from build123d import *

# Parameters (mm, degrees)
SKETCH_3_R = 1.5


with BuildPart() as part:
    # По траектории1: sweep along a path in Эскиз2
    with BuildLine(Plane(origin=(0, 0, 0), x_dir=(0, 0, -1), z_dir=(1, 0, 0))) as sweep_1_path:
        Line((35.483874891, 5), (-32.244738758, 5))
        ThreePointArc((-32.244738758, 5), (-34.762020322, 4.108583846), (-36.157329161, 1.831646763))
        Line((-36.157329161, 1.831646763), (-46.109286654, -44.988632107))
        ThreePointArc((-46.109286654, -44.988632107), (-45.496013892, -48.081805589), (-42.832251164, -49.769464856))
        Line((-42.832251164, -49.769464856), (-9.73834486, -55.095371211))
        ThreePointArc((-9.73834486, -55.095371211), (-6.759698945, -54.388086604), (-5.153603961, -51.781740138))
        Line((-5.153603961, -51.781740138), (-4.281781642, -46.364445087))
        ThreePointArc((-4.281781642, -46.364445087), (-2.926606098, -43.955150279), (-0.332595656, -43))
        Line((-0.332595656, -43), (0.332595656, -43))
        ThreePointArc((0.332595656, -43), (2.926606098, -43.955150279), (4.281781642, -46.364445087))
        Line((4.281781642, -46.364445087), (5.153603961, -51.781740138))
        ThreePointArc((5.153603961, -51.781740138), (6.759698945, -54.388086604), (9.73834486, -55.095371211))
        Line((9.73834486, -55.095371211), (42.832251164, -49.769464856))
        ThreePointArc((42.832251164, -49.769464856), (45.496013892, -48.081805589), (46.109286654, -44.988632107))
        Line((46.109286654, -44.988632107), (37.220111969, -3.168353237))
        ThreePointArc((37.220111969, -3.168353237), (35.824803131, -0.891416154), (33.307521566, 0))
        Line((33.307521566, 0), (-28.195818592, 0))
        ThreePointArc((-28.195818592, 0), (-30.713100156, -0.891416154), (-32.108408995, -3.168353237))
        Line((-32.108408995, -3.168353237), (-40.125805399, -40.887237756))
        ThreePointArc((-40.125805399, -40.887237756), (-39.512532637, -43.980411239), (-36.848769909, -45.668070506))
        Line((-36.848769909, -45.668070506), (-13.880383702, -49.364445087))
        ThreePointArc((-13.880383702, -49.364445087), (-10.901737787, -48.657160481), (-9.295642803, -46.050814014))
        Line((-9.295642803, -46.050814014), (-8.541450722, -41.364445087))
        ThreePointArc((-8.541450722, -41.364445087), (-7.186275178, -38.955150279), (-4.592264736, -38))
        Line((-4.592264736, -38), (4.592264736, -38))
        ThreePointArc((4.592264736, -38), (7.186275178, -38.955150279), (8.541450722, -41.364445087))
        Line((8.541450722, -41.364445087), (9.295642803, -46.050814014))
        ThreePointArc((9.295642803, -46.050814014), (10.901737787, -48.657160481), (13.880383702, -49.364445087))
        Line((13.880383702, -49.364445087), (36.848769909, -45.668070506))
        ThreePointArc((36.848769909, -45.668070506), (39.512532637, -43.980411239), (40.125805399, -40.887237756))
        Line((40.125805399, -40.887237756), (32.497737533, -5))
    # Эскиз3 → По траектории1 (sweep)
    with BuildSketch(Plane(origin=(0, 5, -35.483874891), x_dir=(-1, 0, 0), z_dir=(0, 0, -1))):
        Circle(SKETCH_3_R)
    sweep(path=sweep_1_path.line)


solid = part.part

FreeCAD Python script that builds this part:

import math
import FreeCAD as App
import Part
import Sketcher
Q = App.Units.Quantity

doc = App.newDocument("Part")
params = doc.addObject("Spreadsheet::Sheet", "Params")
for row, (alias, value) in enumerate([
    ("sketch1_diameter", "3 mm"),
    ("sketch2_radius", "4 mm"),
], start=1):
    params.set(f"A{row}", alias)
    params.set(f"B{row}", "=" + value)
    params.setAlias(f"B{row}", alias)

body = doc.addObject("PartDesign::Body", "Body")

sketch1 = body.newObject("Sketcher::SketchObject", "Sketch")
sketch1.AttachmentSupport = (doc.getObject("XY_Plane"), [""])
sketch1.MapMode = "FlatFace"
sketch1.AttachmentOffset = App.Placement(App.Vector(0, 0, -35.483875), App.Rotation())
sketch1.addGeometry(Part.Circle(App.Vector(0, 5, 0), App.Vector(0, 0, 1), 1.5), False)
sketch1.addConstraint([
    Sketcher.Constraint("PointOnObject", 0, 3, -2),
    Sketcher.Constraint("Diameter", 0, 3.0),
    Sketcher.Constraint("DistanceY", -1, 1, 0, 3, 5.0),
])
sketch1.setExpression("Constraints[1]", "Params.sketch1_diameter")

sketch2 = body.newObject("Sketcher::SketchObject", "Sketch001")
sketch2.AttachmentSupport = (doc.getObject("YZ_Plane"), [""])
sketch2.MapMode = "FlatFace"
sketch2.addGeometry([
    Part.LineSegment(App.Vector(5, -35.5, 0), App.Vector(5, 32.2, 0)),
    Part.ArcOfCircle(Part.Circle(App.Vector(1, 32.2, 0), App.Vector(0, 0, 1), 4), math.radians(0), math.radians(78)),
    Part.LineSegment(App.Vector(1.8, 36.2, 0), App.Vector(-45, 46.1, 0)),
    Part.ArcOfCircle(Part.Circle(App.Vector(-45.8, 42.2, 0), App.Vector(0, 0, 1), 4), math.radians(78), math.radians(171)),
    Part.LineSegment(App.Vector(-49.8, 42.8, 0), App.Vector(-55.1, 9.7, 0)),
    Part.ArcOfCircle(Part.Circle(App.Vector(-51.1, 9.1, 0), App.Vector(0, 0, 1), 4), math.radians(171), math.radians(261)),
    Part.LineSegment(App.Vector(-51.8, 5.2, 0), App.Vector(-46.4, 4.3, 0)),
    Part.ArcOfCircle(Part.Circle(App.Vector(-47, 0.3, 0), App.Vector(0, 0, 1), 4), math.radians(0), math.radians(81)),
    Part.LineSegment(App.Vector(-43, 0.3, 0), App.Vector(-43, -0.3, 0)),
    Part.ArcOfCircle(Part.Circle(App.Vector(-47, -0.3, 0), App.Vector(0, 0, 1), 4), math.radians(-81), math.radians(0)),
    Part.LineSegment(App.Vector(-46.4, -4.3, 0), App.Vector(-51.8, -5.2, 0)),
    Part.ArcOfCircle(Part.Circle(App.Vector(-51.1, -9.1, 0), App.Vector(0, 0, 1), 4), math.radians(99), math.radians(189)),
    Part.LineSegment(App.Vector(-55.1, -9.7, 0), App.Vector(-49.8, -42.8, 0)),
    Part.ArcOfCircle(Part.Circle(App.Vector(-45.8, -42.2, 0), App.Vector(0, 0, 1), 4), math.radians(-171), math.radians(-78)),
    Part.LineSegment(App.Vector(-45, -46.1, 0), App.Vector(-3.2, -37.2, 0)),
    Part.ArcOfCircle(Part.Circle(App.Vector(-4, -33.3, 0), App.Vector(0, 0, 1), 4), math.radians(-78), math.radians(0)),
    Part.LineSegment(App.Vector(0, -33.3, 0), App.Vector(0, 28.2, 0)),
    Part.ArcOfCircle(Part.Circle(App.Vector(-4, 28.2, 0), App.Vector(0, 0, 1), 4), math.radians(0), math.radians(78)),
    Part.LineSegment(App.Vector(-3.2, 32.1, 0), App.Vector(-40.9, 40.1, 0)),
    Part.ArcOfCircle(Part.Circle(App.Vector(-41.7, 36.2, 0), App.Vector(0, 0, 1), 4), math.radians(78), math.radians(171)),
    Part.LineSegment(App.Vector(-45.7, 36.8, 0), App.Vector(-49.4, 13.9, 0)),
    Part.ArcOfCircle(Part.Circle(App.Vector(-45.4, 13.2, 0), App.Vector(0, 0, 1), 4), math.radians(171), math.radians(261)),
    Part.LineSegment(App.Vector(-46.1, 9.3, 0), App.Vector(-41.4, 8.5, 0)),
    Part.ArcOfCircle(Part.Circle(App.Vector(-42, 4.6, 0), App.Vector(0, 0, 1), 4), math.radians(0), math.radians(81)),
    Part.LineSegment(App.Vector(-38, 4.6, 0), App.Vector(-38, -4.6, 0)),
    Part.ArcOfCircle(Part.Circle(App.Vector(-42, -4.6, 0), App.Vector(0, 0, 1), 4), math.radians(-81), math.radians(0)),
    Part.LineSegment(App.Vector(-41.4, -8.5, 0), App.Vector(-46.1, -9.3, 0)),
    Part.ArcOfCircle(Part.Circle(App.Vector(-45.4, -13.2, 0), App.Vector(0, 0, 1), 4), math.radians(99), math.radians(189)),
    Part.LineSegment(App.Vector(-49.4, -13.9, 0), App.Vector(-45.7, -36.8, 0)),
    Part.ArcOfCircle(Part.Circle(App.Vector(-41.7, -36.2, 0), App.Vector(0, 0, 1), 4), math.radians(-171), math.radians(-78)),
    Part.LineSegment(App.Vector(-40.9, -40.1, 0), App.Vector(-5, -32.5, 0)),
], False)
sketch2.addConstraint([
    Sketcher.Constraint("Tangent", 0, 2, 1, 1),
    Sketcher.Constraint("Tangent", 1, 2, 2, 1),
    Sketcher.Constraint("Tangent", 2, 2, 3, 1),
    Sketcher.Constraint("Tangent", 3, 2, 4, 1),
    Sketcher.Constraint("Tangent", 4, 2, 5, 1),
    Sketcher.Constraint("Tangent", 5, 2, 6, 1),
    Sketcher.Constraint("Tangent", 6, 2, 7, 2),
    Sketcher.Constraint("Tangent", 7, 1, 8, 1),
    Sketcher.Constraint("Tangent", 8, 2, 9, 2),
    Sketcher.Constraint("Tangent", 9, 1, 10, 1),
    Sketcher.Constraint("Tangent", 10, 2, 11, 1),
    Sketcher.Constraint("Tangent", 11, 2, 12, 1),
    Sketcher.Constraint("Tangent", 12, 2, 13, 1),
    Sketcher.Constraint("Tangent", 13, 2, 14, 1),
    Sketcher.Constraint("Tangent", 14, 2, 15, 1),
    Sketcher.Constraint("Tangent", 15, 2, 16, 1),
    Sketcher.Constraint("Tangent", 16, 2, 17, 1),
    Sketcher.Constraint("Tangent", 17, 2, 18, 1),
    Sketcher.Constraint("Tangent", 18, 2, 19, 1),
    Sketcher.Constraint("Tangent", 19, 2, 20, 1),
    Sketcher.Constraint("Tangent", 20, 2, 21, 1),
    Sketcher.Constraint("Tangent", 21, 2, 22, 1),
    Sketcher.Constraint("Tangent", 22, 2, 23, 2),
    Sketcher.Constraint("Tangent", 23, 1, 24, 1),
    Sketcher.Constraint("Tangent", 24, 2, 25, 2),
    Sketcher.Constraint("Tangent", 25, 1, 26, 1),
    Sketcher.Constraint("Tangent", 26, 2, 27, 1),
    Sketcher.Constraint("Tangent", 27, 2, 28, 1),
    Sketcher.Constraint("Tangent", 28, 2, 29, 1),
    Sketcher.Constraint("Tangent", 29, 2, 30, 1),
    Sketcher.Constraint("Vertical", 0),
    Sketcher.Constraint("Vertical", 8),
    Sketcher.Constraint("Vertical", 16),
    Sketcher.Constraint("Vertical", 24),
    Sketcher.Constraint("Equal", 1, 3),
    Sketcher.Constraint("Equal", 3, 5),
    Sketcher.Constraint("Equal", 5, 7),
    Sketcher.Constraint("Equal", 7, 9),
    Sketcher.Constraint("Equal", 9, 11),
    Sketcher.Constraint("Equal", 11, 13),
    Sketcher.Constraint("Equal", 13, 15),
    Sketcher.Constraint("Equal", 15, 17),
    Sketcher.Constraint("Equal", 17, 19),
    Sketcher.Constraint("Equal", 19, 21),
    Sketcher.Constraint("Equal", 21, 23),
    Sketcher.Constraint("Equal", 23, 25),
    Sketcher.Constraint("Equal", 25, 27),
    Sketcher.Constraint("Equal", 27, 29),
    Sketcher.Constraint("Symmetric", 5, 3, 11, 3, -1),
    Sketcher.Constraint("Symmetric", 3, 3, 13, 3, -1),
    Sketcher.Constraint("Symmetric", 21, 3, 27, 3, -1),
    Sketcher.Constraint("Symmetric", 19, 3, 29, 3, -1),
    Sketcher.Constraint("PointOnObject", 15, 2, -2),
    Sketcher.Constraint("Perpendicular", 4, 6),
    Sketcher.Constraint("Perpendicular", 10, 12),
    Sketcher.Constraint("Parallel", 2, 18),
    Sketcher.Constraint("Perpendicular", 6, 20),
    Sketcher.Constraint("Perpendicular", 20, 22),
    Sketcher.Constraint("Perpendicular", 12, 26),
    Sketcher.Constraint("Parallel", 14, 30),
    Sketcher.Constraint("Vertical", 2, 2, 13, 2),
    Sketcher.Constraint("Radius", 1, 4.0),
    Sketcher.Constraint("Angle", 2, Q("168 deg")),
    Sketcher.Constraint("DistanceX", -1, 1, 1, 3, 1.0),
    Sketcher.Constraint("DistanceX", 7, 3, -1, 1, 47.0),
    Sketcher.Constraint("DistanceX", 23, 3, -1, 1, 42.0),
    Sketcher.Constraint("DistanceX", 30, 2, -1, 1, 5.0),
    Sketcher.Constraint("DistanceX", 20, 2, 6, 2, 3.0),
    Sketcher.Constraint("Distance", 6, 5.486999),
    Sketcher.Constraint("DistanceY", 8, 2, 8, 1, 0.665191),
    Sketcher.Constraint("DistanceY", 16, 1, 16, 2, 61.50334),
    Sketcher.Constraint("DistanceY", 24, 2, 24, 1, 9.184529),
    Sketcher.Constraint("DistanceY", 7, 3, 3, 3, 41.864101),
    Sketcher.Constraint("DistanceX", 5, 3, 19, 3, 9.427301),
    Sketcher.Constraint("DistanceY", 0, 1, 0, 2, 67.728614),
])
sketch2.setExpression("Constraints[61]", "Params.sketch2_radius")
doc.recompute()

additivepipe = body.newObject("PartDesign::AdditivePipe", "AdditivePipe")
additivepipe.Profile = sketch1
additivepipe.Spine = (sketch2, ["Edge1", "Edge2", "Edge3", "Edge4", "Edge5", "Edge6", "Edge7", "Edge8", "Edge9", "Edge10", "Edge11", "Edge12", "Edge13", "Edge14", "Edge15", "Edge16", "Edge17", "Edge18", "Edge19", "Edge20", "Edge21", "Edge22", "Edge23", "Edge24", "Edge25", "Edge26", "Edge27", "Edge28", "Edge29", "Edge30", "Edge31"])

doc.recompute()
